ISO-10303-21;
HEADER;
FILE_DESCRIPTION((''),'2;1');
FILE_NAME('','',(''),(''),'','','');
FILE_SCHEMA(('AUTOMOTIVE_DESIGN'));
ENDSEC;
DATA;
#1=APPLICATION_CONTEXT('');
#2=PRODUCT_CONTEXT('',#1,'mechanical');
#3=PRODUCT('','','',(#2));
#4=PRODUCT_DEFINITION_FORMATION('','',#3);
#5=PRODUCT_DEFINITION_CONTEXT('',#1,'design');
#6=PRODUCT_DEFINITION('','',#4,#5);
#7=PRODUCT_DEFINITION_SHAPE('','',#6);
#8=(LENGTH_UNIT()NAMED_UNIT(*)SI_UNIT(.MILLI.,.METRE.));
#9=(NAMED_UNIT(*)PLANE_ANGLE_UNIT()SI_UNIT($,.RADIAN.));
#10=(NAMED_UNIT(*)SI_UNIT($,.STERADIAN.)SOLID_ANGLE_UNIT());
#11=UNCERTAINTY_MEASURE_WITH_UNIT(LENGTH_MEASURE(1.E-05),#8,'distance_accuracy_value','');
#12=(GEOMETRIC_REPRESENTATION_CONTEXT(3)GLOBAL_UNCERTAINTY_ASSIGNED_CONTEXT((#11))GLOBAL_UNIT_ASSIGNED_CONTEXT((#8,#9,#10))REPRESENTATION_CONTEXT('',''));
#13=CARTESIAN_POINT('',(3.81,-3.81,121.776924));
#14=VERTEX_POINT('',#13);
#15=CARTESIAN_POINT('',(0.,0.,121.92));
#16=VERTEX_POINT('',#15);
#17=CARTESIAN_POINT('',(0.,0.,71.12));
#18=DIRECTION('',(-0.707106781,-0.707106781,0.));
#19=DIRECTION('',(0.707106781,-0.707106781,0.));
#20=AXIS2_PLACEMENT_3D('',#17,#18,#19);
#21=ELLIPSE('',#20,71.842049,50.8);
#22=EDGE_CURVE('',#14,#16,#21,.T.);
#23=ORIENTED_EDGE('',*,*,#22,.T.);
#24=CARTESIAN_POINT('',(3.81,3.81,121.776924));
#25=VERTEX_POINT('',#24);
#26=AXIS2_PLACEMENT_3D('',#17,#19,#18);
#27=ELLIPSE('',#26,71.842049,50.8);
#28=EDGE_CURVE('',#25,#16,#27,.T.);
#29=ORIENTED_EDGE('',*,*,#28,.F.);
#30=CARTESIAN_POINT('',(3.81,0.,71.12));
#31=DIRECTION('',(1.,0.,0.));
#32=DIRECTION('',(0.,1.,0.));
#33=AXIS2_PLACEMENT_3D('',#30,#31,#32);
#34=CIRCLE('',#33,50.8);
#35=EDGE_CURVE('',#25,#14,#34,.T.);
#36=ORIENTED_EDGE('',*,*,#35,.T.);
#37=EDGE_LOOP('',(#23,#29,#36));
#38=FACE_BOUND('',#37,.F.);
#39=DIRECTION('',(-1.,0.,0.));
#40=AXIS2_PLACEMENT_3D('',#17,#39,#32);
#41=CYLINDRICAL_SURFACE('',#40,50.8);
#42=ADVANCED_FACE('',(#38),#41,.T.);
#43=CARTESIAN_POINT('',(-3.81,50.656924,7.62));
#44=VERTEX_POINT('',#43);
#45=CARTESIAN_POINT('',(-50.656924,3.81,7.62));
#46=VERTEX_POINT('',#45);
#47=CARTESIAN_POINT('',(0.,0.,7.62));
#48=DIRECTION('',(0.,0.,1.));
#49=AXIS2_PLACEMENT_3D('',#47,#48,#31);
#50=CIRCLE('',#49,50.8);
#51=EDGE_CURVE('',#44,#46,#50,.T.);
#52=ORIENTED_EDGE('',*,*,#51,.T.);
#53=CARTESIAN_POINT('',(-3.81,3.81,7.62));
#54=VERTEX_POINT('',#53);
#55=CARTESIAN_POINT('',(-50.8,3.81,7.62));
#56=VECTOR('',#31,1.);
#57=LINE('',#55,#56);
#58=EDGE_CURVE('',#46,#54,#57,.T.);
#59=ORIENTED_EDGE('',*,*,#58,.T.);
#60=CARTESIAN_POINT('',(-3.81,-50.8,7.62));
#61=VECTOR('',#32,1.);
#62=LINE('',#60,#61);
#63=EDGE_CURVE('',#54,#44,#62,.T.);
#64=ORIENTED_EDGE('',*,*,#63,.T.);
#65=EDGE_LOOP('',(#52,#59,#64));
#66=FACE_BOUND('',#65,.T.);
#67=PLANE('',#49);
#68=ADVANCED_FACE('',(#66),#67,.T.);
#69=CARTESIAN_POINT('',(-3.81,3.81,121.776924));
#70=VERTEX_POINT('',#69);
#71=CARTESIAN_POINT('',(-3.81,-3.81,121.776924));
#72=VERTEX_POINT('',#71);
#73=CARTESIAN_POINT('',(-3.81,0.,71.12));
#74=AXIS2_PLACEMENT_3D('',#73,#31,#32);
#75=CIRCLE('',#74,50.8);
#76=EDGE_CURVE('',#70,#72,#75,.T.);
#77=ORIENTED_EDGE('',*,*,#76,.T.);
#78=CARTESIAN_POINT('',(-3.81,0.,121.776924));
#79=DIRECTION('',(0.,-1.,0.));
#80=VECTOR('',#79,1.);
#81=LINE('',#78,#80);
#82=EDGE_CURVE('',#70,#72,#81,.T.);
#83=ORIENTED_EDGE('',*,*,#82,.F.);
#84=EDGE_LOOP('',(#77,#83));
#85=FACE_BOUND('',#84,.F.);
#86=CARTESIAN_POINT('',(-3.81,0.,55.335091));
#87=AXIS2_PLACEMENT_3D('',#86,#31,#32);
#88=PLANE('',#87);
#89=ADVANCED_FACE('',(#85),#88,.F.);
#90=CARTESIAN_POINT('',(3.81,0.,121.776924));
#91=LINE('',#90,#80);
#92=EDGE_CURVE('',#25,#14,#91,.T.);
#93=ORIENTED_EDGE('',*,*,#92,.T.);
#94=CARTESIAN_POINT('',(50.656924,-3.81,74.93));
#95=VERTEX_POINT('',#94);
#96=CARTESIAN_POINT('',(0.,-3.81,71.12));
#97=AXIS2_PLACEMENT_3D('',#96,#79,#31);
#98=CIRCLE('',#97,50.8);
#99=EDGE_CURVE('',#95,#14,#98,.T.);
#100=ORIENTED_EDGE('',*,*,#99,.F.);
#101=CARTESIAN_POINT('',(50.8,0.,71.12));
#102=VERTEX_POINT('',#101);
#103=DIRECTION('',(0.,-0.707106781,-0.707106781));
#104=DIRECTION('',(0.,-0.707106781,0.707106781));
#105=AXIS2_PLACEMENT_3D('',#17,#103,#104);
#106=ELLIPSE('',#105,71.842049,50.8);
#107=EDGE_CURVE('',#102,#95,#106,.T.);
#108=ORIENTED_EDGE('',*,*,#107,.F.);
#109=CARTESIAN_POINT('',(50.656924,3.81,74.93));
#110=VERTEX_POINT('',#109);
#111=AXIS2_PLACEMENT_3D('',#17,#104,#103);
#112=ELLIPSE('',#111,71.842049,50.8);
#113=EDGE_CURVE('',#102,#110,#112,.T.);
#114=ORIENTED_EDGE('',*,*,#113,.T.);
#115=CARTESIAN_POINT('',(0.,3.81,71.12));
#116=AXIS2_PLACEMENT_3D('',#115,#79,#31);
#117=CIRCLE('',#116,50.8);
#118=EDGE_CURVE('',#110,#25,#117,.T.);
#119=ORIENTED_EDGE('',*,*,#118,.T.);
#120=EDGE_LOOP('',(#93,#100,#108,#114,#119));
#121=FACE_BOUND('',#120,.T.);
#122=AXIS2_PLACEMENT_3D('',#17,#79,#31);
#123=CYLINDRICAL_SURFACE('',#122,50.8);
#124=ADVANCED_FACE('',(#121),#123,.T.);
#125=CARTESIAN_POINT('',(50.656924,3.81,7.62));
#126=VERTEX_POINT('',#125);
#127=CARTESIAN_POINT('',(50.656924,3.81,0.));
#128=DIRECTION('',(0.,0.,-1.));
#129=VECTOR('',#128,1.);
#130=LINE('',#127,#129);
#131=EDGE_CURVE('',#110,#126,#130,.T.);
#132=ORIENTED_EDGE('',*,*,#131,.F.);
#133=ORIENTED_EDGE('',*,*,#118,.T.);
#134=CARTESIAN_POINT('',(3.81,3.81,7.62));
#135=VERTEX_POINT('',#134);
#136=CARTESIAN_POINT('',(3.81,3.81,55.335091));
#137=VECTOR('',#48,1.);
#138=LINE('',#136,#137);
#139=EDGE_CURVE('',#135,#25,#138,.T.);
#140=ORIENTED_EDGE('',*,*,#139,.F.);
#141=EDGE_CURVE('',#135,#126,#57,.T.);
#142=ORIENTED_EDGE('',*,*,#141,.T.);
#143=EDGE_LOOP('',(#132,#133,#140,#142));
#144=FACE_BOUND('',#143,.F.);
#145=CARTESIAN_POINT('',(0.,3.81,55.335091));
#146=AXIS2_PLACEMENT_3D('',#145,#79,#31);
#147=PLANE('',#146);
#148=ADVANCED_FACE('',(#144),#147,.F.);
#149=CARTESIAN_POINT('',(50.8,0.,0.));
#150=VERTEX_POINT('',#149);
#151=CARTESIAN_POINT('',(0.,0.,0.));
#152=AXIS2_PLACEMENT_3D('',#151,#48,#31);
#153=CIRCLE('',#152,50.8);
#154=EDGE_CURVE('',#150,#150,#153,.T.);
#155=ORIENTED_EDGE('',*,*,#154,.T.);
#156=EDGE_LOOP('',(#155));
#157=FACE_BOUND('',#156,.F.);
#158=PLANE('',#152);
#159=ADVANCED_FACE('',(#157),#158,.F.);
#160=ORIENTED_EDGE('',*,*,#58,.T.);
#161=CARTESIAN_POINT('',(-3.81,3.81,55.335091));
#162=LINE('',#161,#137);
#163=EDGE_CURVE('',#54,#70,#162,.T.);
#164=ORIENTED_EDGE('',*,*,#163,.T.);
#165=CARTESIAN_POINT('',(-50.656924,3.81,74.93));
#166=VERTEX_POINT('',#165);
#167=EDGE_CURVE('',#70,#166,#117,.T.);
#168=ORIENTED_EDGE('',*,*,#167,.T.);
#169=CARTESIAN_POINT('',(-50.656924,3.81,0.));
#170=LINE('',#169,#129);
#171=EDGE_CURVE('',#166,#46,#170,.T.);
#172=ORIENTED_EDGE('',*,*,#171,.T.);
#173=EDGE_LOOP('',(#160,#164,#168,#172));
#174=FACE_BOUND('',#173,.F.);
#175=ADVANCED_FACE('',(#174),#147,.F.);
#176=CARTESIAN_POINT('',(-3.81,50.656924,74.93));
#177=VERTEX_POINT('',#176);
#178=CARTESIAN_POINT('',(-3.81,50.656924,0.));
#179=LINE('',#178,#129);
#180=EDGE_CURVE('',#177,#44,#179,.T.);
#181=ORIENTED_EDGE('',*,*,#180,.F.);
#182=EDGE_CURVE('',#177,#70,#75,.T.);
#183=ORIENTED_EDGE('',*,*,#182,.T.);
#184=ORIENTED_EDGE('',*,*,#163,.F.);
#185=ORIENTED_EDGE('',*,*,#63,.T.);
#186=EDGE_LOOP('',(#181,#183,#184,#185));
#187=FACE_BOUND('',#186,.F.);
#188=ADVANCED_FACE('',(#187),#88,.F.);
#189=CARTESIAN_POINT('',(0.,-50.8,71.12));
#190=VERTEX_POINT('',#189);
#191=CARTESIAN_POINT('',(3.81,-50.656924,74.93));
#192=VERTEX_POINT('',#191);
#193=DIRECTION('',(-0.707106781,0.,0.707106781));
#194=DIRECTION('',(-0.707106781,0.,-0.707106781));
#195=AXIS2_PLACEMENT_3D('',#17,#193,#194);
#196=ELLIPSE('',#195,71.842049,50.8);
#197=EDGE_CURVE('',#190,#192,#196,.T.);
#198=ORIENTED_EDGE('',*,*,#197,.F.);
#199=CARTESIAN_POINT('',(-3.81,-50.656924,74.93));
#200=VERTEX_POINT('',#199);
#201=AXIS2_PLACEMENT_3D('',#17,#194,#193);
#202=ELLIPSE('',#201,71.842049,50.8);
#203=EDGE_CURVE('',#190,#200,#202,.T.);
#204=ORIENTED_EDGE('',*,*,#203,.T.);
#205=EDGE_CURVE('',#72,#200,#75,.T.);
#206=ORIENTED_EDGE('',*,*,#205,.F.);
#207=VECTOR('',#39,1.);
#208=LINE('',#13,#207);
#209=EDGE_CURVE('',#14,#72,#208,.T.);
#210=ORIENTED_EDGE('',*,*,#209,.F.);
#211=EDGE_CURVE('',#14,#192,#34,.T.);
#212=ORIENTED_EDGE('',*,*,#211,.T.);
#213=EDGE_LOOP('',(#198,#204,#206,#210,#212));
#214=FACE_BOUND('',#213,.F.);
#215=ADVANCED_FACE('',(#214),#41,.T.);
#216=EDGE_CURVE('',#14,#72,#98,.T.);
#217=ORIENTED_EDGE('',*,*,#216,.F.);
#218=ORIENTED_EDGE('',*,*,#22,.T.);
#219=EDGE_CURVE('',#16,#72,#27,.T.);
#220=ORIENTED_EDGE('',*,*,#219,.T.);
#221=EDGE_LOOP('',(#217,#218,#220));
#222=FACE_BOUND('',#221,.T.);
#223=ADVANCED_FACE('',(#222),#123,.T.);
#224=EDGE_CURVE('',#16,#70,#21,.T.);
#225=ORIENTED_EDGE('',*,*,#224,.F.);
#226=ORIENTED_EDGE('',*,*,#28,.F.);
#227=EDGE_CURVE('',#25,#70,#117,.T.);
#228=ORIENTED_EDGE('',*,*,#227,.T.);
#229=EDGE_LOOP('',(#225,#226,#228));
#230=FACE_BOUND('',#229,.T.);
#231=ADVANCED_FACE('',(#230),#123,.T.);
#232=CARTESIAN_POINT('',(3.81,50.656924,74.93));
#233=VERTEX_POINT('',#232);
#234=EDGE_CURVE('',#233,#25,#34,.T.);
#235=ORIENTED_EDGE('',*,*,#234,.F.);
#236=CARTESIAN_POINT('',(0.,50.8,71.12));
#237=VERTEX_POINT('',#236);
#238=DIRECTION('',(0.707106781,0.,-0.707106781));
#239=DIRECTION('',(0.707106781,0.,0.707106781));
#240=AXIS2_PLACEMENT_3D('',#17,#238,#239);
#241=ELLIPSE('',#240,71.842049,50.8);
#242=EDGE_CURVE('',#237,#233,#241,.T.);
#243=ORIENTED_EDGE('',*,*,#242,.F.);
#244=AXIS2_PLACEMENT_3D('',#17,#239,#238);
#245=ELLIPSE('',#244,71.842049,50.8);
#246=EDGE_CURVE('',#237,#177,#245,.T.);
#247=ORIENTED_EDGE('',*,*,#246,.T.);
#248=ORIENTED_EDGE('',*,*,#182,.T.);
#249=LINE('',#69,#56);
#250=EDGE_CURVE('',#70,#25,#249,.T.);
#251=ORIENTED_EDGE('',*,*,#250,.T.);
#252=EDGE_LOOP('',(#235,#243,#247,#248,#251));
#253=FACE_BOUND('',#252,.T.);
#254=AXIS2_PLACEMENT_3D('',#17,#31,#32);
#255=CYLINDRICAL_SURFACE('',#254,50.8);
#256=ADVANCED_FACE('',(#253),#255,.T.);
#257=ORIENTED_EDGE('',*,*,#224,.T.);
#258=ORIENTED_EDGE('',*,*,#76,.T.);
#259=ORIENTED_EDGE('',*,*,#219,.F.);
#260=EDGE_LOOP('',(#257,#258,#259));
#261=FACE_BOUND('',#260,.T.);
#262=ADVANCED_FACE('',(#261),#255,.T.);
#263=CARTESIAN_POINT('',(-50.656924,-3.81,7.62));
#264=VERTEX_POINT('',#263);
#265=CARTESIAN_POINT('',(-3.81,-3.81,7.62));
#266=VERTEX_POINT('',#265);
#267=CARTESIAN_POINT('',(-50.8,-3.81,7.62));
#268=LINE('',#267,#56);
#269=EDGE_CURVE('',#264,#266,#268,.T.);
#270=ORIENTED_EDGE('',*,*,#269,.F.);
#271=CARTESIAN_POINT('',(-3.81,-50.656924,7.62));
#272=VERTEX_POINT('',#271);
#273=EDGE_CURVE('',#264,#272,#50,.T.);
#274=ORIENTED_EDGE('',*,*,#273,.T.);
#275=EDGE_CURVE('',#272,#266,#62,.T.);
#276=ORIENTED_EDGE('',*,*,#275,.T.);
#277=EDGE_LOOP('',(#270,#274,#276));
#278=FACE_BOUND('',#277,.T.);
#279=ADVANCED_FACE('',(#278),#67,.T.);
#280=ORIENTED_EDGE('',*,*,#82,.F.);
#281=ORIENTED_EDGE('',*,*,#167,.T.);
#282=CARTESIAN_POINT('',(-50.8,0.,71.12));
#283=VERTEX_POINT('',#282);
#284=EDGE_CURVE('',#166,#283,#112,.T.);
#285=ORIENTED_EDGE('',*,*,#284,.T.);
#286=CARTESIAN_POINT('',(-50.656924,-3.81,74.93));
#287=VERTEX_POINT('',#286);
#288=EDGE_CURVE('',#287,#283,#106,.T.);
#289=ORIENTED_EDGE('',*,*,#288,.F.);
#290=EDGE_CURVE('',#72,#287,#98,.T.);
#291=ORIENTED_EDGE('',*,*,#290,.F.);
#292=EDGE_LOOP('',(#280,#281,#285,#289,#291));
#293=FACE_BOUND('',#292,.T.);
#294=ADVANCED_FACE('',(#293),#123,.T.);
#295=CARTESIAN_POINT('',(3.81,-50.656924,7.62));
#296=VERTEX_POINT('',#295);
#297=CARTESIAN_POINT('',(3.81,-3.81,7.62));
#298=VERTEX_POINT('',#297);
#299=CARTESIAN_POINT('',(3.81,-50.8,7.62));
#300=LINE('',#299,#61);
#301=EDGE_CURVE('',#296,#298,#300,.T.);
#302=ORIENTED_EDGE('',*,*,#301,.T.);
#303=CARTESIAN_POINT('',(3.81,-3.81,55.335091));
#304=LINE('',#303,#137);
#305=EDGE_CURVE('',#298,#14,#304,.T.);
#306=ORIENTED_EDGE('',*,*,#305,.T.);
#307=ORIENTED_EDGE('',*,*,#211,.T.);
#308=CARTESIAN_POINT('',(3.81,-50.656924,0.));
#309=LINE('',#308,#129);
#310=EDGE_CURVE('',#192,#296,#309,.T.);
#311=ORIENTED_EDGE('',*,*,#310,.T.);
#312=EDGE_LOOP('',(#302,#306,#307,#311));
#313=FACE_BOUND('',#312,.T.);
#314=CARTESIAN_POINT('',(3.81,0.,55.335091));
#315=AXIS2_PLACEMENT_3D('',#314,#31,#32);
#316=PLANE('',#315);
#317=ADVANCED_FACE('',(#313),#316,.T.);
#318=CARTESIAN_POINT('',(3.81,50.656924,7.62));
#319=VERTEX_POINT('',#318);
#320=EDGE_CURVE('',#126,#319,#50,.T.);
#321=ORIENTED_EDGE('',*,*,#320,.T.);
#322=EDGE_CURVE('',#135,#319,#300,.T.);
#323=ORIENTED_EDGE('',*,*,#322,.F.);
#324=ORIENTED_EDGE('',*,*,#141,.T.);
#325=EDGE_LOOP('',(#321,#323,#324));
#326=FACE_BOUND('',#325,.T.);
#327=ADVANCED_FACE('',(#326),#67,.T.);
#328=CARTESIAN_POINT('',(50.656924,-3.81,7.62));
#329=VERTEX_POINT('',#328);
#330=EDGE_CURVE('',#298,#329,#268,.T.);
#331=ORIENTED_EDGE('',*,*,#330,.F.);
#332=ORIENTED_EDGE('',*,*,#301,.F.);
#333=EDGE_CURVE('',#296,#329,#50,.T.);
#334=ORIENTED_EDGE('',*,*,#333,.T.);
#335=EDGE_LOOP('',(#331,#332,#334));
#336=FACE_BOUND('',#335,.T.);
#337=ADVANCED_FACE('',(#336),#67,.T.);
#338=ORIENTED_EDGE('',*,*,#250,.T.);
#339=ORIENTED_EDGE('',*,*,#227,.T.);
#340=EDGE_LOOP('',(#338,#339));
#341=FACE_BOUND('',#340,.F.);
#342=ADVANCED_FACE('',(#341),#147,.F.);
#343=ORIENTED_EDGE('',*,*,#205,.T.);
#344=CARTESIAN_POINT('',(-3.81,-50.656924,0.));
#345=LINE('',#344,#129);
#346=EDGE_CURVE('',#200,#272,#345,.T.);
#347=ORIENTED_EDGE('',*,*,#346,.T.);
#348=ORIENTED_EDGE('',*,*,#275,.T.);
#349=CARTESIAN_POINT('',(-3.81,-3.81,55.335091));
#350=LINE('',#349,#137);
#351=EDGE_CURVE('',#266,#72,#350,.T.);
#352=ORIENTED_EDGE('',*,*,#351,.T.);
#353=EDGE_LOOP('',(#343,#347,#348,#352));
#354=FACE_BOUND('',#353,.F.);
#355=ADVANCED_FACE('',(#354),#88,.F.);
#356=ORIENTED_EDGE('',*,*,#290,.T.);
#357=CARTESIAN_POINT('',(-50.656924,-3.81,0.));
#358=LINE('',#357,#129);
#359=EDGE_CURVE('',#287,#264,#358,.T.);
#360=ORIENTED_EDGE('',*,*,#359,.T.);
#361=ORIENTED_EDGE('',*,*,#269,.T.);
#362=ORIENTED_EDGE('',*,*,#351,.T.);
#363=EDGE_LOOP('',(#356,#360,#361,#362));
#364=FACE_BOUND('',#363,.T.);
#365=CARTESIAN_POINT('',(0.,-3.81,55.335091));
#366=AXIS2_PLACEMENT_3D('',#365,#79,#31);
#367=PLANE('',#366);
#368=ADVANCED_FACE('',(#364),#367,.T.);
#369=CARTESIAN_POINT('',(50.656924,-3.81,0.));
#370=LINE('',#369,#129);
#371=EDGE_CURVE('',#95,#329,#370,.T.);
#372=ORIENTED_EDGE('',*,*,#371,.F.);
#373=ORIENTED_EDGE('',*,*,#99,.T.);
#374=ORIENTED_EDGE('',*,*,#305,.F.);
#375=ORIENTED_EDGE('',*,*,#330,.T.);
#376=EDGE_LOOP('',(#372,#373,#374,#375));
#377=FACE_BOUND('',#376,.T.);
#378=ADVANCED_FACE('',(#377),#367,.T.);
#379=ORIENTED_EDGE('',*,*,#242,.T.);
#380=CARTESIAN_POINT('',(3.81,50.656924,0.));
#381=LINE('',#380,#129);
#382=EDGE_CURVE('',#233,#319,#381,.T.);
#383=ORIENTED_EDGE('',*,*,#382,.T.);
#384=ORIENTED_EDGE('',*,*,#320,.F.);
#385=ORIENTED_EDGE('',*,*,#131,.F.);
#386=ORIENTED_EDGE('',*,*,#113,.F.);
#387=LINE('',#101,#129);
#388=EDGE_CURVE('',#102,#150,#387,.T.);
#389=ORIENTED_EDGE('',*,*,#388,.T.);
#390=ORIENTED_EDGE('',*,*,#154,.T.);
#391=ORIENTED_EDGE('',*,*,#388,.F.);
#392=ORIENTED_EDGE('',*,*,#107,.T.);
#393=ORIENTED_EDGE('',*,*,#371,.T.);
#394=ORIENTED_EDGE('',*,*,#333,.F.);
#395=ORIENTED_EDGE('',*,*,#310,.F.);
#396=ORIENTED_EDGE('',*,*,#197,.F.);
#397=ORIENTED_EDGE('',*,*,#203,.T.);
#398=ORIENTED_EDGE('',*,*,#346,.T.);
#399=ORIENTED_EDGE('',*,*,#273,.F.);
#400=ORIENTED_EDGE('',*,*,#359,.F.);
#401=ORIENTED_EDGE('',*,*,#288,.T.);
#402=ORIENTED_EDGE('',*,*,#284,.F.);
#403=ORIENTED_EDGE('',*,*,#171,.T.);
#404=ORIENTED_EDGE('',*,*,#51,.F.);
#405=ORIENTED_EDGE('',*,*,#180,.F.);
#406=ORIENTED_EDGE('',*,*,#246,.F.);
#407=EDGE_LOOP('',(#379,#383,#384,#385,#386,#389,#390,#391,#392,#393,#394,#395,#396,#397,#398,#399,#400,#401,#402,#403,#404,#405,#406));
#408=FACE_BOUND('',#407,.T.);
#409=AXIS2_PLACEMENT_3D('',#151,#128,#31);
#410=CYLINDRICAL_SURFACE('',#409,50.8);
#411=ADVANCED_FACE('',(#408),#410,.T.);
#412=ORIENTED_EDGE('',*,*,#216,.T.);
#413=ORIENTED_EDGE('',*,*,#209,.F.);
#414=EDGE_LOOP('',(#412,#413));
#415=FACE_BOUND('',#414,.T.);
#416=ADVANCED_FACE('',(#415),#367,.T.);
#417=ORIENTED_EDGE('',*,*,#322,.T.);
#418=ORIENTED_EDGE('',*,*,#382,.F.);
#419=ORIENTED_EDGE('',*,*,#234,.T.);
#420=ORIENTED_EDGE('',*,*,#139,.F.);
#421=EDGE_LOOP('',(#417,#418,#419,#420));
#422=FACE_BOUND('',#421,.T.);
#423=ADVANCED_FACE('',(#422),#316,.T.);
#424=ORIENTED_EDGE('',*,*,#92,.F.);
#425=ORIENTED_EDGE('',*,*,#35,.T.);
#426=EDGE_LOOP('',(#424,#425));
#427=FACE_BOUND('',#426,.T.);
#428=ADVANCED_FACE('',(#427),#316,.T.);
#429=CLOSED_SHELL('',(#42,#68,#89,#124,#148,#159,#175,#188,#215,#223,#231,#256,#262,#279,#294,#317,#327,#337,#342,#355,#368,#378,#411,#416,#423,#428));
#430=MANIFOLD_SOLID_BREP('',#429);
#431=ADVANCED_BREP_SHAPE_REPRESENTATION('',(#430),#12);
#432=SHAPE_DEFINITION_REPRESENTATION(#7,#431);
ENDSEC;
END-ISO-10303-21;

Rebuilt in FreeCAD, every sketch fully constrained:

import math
import FreeCAD as App
import Part
import Sketcher
Q = App.Units.Quantity

doc = App.newDocument("Part")
body = doc.addObject("PartDesign::Body", "Body")

# Sketch on XY plane
sketch1 = body.newObject("Sketcher::SketchObject", "Sketch")
sketch1.AttachmentSupport = (doc.getObject("XY_Plane"), [""])
sketch1.MapMode = "FlatFace"
sketch1.addGeometry(Part.Circle(App.Vector(0, 0, 0), App.Vector(0, 0, 1), 51), False)
sketch1.addConstraint([
    Sketcher.Constraint("Coincident", 0, 3, -1, 1),
    Sketcher.Constraint("Diameter", 0, Q("4 in")),
])
pad1 = body.newObject("PartDesign::Pad", "Pad")
pad1.Profile = sketch1
pad1.Length = Q("0.3 in")

# Sketch on XZ plane
sketch2 = body.newObject("Sketcher::SketchObject", "Sketch001")
sketch2.AttachmentSupport = (doc.getObject("XZ_Plane"), [""])
sketch2.MapMode = "FlatFace"
sketch2.addGeometry([
    Part.LineSegment(App.Vector(51, 8, 0), App.Vector(51, 71, 0)),
    Part.ArcOfCircle(Part.Circle(App.Vector(0, 71, 0), App.Vector(0, 0, 1), 51), math.radians(0), math.radians(180)),
    Part.LineSegment(App.Vector(-51, 71, 0), App.Vector(-51, 8, 0)),
    Part.LineSegment(App.Vector(-51, 8, 0), App.Vector(51, 8, 0)),
], False)
sketch2.addConstraint([
    Sketcher.Constraint("Tangent", 0, 2, 1, 1),
    Sketcher.Constraint("Tangent", 1, 2, 2, 1),
    Sketcher.Constraint("Coincident", 2, 2, 3, 1),
    Sketcher.Constraint("Coincident", 3, 2, 0, 1),
    Sketcher.Constraint("Vertical", 0),
    Sketcher.Constraint("Vertical", 2),
    Sketcher.Constraint("Horizontal", 3),
    Sketcher.Constraint("PointOnObject", 1, 3, -2),
    Sketcher.Constraint("Radius", 1, Q("2 in")),
    Sketcher.Constraint("DistanceY", 0, 1, 0, 2, Q("2.5 in")),
    Sketcher.Constraint("DistanceY", -1, 1, 1, 3, Q("2.8 in")),
])
pad2 = body.newObject("PartDesign::Pad", "Pad001")
pad2.Profile = sketch2
pad2.Type = "TwoLengths"
pad2.Length = Q("0.15 in")
pad2.Length2 = Q("0.15 in")

# Sketch on YZ plane
sketch3 = body.newObject("Sketcher::SketchObject", "Sketch002")
sketch3.AttachmentSupport = (doc.getObject("YZ_Plane"), [""])
sketch3.MapMode = "FlatFace"
sketch3.addGeometry([
    Part.LineSegment(App.Vector(51, 8, 0), App.Vector(51, 71, 0)),
    Part.ArcOfCircle(Part.Circle(App.Vector(0, 71, 0), App.Vector(0, 0, 1), 51), math.radians(0), math.radians(180)),
    Part.LineSegment(App.Vector(-51, 71, 0), App.Vector(-51, 8, 0)),
    Part.LineSegment(App.Vector(-51, 8, 0), App.Vector(51, 8, 0)),
], False)
sketch3.addConstraint([
    Sketcher.Constraint("Tangent", 0, 2, 1, 1),
    Sketcher.Constraint("Tangent", 1, 2, 2, 1),
    Sketcher.Constraint("Coincident", 2, 2, 3, 1),
    Sketcher.Constraint("Coincident", 3, 2, 0, 1),
    Sketcher.Constraint("Vertical", 0),
    Sketcher.Constraint("Vertical", 2),
    Sketcher.Constraint("Horizontal", 3),
    Sketcher.Constraint("PointOnObject", 1, 3, -2),
    Sketcher.Constraint("Radius", 1, Q("2 in")),
    Sketcher.Constraint("DistanceY", 0, 1, 0, 2, Q("2.5 in")),
    Sketcher.Constraint("DistanceY", -1, 1, 1, 3, Q("2.8 in")),
])
pad3 = body.newObject("PartDesign::Pad", "Pad002")
pad3.Profile = sketch3
pad3.Type = "TwoLengths"
pad3.Length = Q("0.15 in")
pad3.Length2 = Q("0.15 in")

# Sketch on XY plane
sketch4 = body.newObject("Sketcher::SketchObject", "Sketch003")
sketch4.AttachmentSupport = (doc.getObject("XY_Plane"), [""])
sketch4.MapMode = "FlatFace"
sketch4.addGeometry([
    Part.Circle(App.Vector(0, 0, 0), App.Vector(0, 0, 1), 74),
    Part.Circle(App.Vector(0, 0, 0), App.Vector(0, 0, 1), 51),
], False)
sketch4.addConstraint([
    Sketcher.Constraint("Coincident", 0, 3, -1, 1),
    Sketcher.Constraint("Coincident", 1, 3, -1, 1),
    Sketcher.Constraint("Diameter", 1, Q("4 in")),
    Sketcher.Constraint("Diameter", 0, Q("147.697884 mm")),
])
pocket1 = body.newObject("PartDesign::Pocket", "Pocket")
pocket1.Profile = sketch4
pocket1.Length = Q("5 in")
pocket1.Reversed = True

doc.recompute()
